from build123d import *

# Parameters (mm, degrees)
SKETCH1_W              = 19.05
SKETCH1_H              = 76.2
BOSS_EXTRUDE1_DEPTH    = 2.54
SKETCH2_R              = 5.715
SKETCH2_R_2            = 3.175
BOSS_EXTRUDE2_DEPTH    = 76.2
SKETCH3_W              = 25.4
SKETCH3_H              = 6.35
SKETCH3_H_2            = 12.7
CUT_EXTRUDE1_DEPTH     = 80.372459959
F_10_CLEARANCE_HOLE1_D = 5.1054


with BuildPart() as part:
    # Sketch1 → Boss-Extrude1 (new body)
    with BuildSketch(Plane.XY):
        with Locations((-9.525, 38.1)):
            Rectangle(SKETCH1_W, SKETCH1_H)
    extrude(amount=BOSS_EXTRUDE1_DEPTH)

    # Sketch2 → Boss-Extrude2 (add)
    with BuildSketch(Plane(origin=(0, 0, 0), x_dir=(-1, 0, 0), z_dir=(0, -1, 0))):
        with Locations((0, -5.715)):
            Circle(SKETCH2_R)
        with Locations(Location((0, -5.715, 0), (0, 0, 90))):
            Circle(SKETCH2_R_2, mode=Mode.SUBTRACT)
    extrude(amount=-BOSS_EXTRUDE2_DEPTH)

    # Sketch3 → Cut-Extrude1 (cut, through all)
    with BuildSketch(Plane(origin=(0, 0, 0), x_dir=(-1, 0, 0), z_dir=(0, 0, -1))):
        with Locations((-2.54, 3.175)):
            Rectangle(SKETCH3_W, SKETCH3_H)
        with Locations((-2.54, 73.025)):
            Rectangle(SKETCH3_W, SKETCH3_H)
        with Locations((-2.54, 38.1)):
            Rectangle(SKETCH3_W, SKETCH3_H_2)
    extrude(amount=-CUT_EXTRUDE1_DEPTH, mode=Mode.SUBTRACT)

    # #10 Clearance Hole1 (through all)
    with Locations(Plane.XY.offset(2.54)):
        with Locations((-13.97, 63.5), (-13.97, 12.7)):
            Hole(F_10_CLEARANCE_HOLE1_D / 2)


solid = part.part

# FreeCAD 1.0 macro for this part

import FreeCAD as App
import Part
import Sketcher
from FreeCAD import Vector
Q = App.Units.Quantity

doc = App.newDocument("Part")
body = doc.addObject("PartDesign::Body", "Body")

# Sketch on XY plane
sketch1 = body.newObject("Sketcher::SketchObject", "Sketch")
sketch1.AttachmentSupport = (doc.getObject("XY_Plane"), [""])
sketch1.MapMode = "FlatFace"
sketch1.addGeometry([
    Part.LineSegment(Vector(-19.05, 76.2, 0), Vector(-19.05, 0, 0)),
    Part.LineSegment(Vector(-19.05, 0, 0), Vector(0, 0, 0)),
    Part.LineSegment(Vector(0, 0, 0), Vector(0, 76.2, 0)),
    Part.LineSegment(Vector(0, 76.2, 0), Vector(-19.05, 76.2, 0)),
], False)
sketch1.addConstraint([
    Sketcher.Constraint("Coincident", 0, 2, 1, 1),
    Sketcher.Constraint("Coincident", 1, 2, 2, 1),
    Sketcher.Constraint("Coincident", 2, 2, 3, 1),
    Sketcher.Constraint("Coincident", 3, 2, 0, 1),
    Sketcher.Constraint("Vertical", 0),
    Sketcher.Constraint("Horizontal", 1),
    Sketcher.Constraint("Vertical", 2),
    Sketcher.Constraint("Horizontal", 3),
    Sketcher.Constraint("Coincident", 1, 2, -1, 1),
    Sketcher.Constraint("DistanceY", 0, 2, 0, 1, Q("3 in")),
    Sketcher.Constraint("DistanceX", 1, 1, 1, 2, Q("0.75 in")),
])
pad1 = body.newObject("PartDesign::Pad", "Pad")
pad1.Profile = sketch1
pad1.Length = Q("0.1 in")

# Sketch on XZ plane
sketch2 = body.newObject("Sketcher::SketchObject", "Sketch001")
sketch2.AttachmentSupport = (doc.getObject("XZ_Plane"), [""])
sketch2.MapMode = "FlatFace"
sketch2.addGeometry([
    Part.Circle(Vector(0, 5.715, 0), Vector(0, 0, 1), 5.715),
    Part.Circle(Vector(0, 5.715, 0), Vector(0, 0, 1), 3.175),
], False)
sketch2.addConstraint([
    Sketcher.Constraint("Coincident", 1, 3, 0, 3),
    Sketcher.Constraint("PointOnObject", 0, 3, -2),
    Sketcher.Constraint("Diameter", 0, Q("0.45 in")),
    Sketcher.Constraint("Diameter", 1, Q("0.25 in")),
    Sketcher.Constraint("DistanceY", -1, 1, 0, 3, Q("0.225 in")),
])
pad2 = body.newObject("PartDesign::Pad", "Pad001")
pad2.Profile = sketch2
pad2.Length = Q("3 in")
pad2.Reversed = True

# Sketch on XY plane
sketch3 = body.newObject("Sketcher::SketchObject", "Sketch002")
sketch3.AttachmentSupport = (doc.getObject("XY_Plane"), [""])
sketch3.MapMode = "FlatFace"
sketch3.addGeometry([
    Part.LineSegment(Vector(15.24, 6.35, 0), Vector(15.24, 0, 0)),  # 0
    Part.LineSegment(Vector(15.24, 0, 0), Vector(-10.16, 0, 0)),  # 1
    Part.LineSegment(Vector(-10.16, 0, 0), Vector(-10.16, 6.35, 0)),  # 2
    Part.LineSegment(Vector(-10.16, 6.35, 0), Vector(15.24, 6.35, 0)),  # 3
    Part.LineSegment(Vector(15.24, 76.2, 0), Vector(15.24, 69.85, 0)),  # 4
    Part.LineSegment(Vector(15.24, 69.85, 0), Vector(-10.16, 69.85, 0)),  # 5
    Part.LineSegment(Vector(-10.16, 69.85, 0), Vector(-10.16, 76.2, 0)),  # 6
    Part.LineSegment(Vector(-10.16, 76.2, 0), Vector(15.24, 76.2, 0)),  # 7
    Part.LineSegment(Vector(15.24, 44.45, 0), Vector(15.24, 31.75, 0)),  # 8
    Part.LineSegment(Vector(15.24, 31.75, 0), Vector(-10.16, 31.75, 0)),  # 9
    Part.LineSegment(Vector(-10.16, 31.75, 0), Vector(-10.16, 44.45, 0)),  # 10
    Part.LineSegment(Vector(-10.16, 44.45, 0), Vector(15.24, 44.45, 0)),  # 11
], False)
sketch3.addConstraint([
    Sketcher.Constraint("Coincident", 0, 2, 1, 1),
    Sketcher.Constraint("Coincident", 1, 2, 2, 1),
    Sketcher.Constraint("Coincident", 2, 2, 3, 1),
    Sketcher.Constraint("Coincident", 3, 2, 0, 1),
    Sketcher.Constraint("Coincident", 4, 2, 5, 1),
    Sketcher.Constraint("Coincident", 5, 2, 6, 1),
    Sketcher.Constraint("Coincident", 6, 2, 7, 1),
    Sketcher.Constraint("Coincident", 7, 2, 4, 1),
    Sketcher.Constraint("Coincident", 8, 2, 9, 1),
    Sketcher.Constraint("Coincident", 9, 2, 10, 1),
    Sketcher.Constraint("Coincident", 10, 2, 11, 1),
    Sketcher.Constraint("Coincident", 11, 2, 8, 1),
    Sketcher.Constraint("Vertical", 0),
    Sketcher.Constraint("Horizontal", 1),
    Sketcher.Constraint("Vertical", 2),
    Sketcher.Constraint("Horizontal", 3),
    Sketcher.Constraint("Vertical", 4),
    Sketcher.Constraint("Horizontal", 5),
    Sketcher.Constraint("Vertical", 6),
    Sketcher.Constraint("Horizontal", 7),
    Sketcher.Constraint("Vertical", 8),
    Sketcher.Constraint("Horizontal", 9),
    Sketcher.Constraint("Vertical", 10),
    Sketcher.Constraint("Horizontal", 11),
    Sketcher.Constraint("PointOnObject", 0, 2, -1),
    Sketcher.Constraint("Vertical", 3, 2, 4, 2),
    Sketcher.Constraint("Vertical", 2, 2, 5, 2),
    Sketcher.Constraint("Vertical", 7, 2, 8, 2),
    Sketcher.Constraint("Vertical", 6, 2, 9, 2),
    Sketcher.Constraint("Equal", 2, 4),
    Sketcher.Constraint("DistanceX", 1, 2, 1, 1, Q("1 in")),
    Sketcher.Constraint("DistanceY", 8, 2, 8, 1, Q("0.5 in")),
    Sketcher.Constraint("DistanceY", -1, 1, 6, 2, Q("3 in")),
    Sketcher.Constraint("DistanceY", 3, 2, 8, 2, Q("1 in")),
    Sketcher.Constraint("DistanceY", 10, 2, 5, 2, Q("1 in")),
    Sketcher.Constraint("DistanceX", -1, 1, 0, 2, Q("0.6 in")),
])
pocket1 = body.newObject("PartDesign::Pocket", "Pocket")
pocket1.Profile = sketch3
pocket1.Type = "ThroughAll"
pocket1.Reversed = True

# Sketch on XY plane
sketch4 = body.newObject("Sketcher::SketchObject", "Sketch003")
sketch4.AttachmentSupport = (doc.getObject("XY_Plane"), [""])
sketch4.MapMode = "FlatFace"
sketch4.AttachmentOffset = App.Placement(Vector(0, 0, 0.1 * 25.4), App.Rotation())
sketch4.addGeometry([
    Part.Circle(Vector(-13.97, 63.5, 0), Vector(0, 0, 1), 2.5527),
    Part.Circle(Vector(-13.97, 12.7, 0), Vector(0, 0, 1), 2.5527),
], False)
sketch4.addConstraint([
    Sketcher.Constraint("Equal", 0, 1),
    Sketcher.Constraint("Vertical", 0, 3, 1, 3),
    Sketcher.Constraint("Diameter", 0, Q("0.201 in")),
    Sketcher.Constraint("DistanceY", 1, 3, 0, 3, Q("2 in")),
    Sketcher.Constraint("DistanceY", -1, 1, 0, 3, Q("2.5 in")),
    Sketcher.Constraint("DistanceX", 0, 3, -1, 1, Q("0.55 in")),
])
doc.recompute()
hole = body.newObject("PartDesign::Hole", "Hole")
hole.Profile = sketch4
hole.ThreadType = "None"
hole.Diameter = Q("0.201 in")
hole.DepthType = "ThroughAll"

doc.recompute()
